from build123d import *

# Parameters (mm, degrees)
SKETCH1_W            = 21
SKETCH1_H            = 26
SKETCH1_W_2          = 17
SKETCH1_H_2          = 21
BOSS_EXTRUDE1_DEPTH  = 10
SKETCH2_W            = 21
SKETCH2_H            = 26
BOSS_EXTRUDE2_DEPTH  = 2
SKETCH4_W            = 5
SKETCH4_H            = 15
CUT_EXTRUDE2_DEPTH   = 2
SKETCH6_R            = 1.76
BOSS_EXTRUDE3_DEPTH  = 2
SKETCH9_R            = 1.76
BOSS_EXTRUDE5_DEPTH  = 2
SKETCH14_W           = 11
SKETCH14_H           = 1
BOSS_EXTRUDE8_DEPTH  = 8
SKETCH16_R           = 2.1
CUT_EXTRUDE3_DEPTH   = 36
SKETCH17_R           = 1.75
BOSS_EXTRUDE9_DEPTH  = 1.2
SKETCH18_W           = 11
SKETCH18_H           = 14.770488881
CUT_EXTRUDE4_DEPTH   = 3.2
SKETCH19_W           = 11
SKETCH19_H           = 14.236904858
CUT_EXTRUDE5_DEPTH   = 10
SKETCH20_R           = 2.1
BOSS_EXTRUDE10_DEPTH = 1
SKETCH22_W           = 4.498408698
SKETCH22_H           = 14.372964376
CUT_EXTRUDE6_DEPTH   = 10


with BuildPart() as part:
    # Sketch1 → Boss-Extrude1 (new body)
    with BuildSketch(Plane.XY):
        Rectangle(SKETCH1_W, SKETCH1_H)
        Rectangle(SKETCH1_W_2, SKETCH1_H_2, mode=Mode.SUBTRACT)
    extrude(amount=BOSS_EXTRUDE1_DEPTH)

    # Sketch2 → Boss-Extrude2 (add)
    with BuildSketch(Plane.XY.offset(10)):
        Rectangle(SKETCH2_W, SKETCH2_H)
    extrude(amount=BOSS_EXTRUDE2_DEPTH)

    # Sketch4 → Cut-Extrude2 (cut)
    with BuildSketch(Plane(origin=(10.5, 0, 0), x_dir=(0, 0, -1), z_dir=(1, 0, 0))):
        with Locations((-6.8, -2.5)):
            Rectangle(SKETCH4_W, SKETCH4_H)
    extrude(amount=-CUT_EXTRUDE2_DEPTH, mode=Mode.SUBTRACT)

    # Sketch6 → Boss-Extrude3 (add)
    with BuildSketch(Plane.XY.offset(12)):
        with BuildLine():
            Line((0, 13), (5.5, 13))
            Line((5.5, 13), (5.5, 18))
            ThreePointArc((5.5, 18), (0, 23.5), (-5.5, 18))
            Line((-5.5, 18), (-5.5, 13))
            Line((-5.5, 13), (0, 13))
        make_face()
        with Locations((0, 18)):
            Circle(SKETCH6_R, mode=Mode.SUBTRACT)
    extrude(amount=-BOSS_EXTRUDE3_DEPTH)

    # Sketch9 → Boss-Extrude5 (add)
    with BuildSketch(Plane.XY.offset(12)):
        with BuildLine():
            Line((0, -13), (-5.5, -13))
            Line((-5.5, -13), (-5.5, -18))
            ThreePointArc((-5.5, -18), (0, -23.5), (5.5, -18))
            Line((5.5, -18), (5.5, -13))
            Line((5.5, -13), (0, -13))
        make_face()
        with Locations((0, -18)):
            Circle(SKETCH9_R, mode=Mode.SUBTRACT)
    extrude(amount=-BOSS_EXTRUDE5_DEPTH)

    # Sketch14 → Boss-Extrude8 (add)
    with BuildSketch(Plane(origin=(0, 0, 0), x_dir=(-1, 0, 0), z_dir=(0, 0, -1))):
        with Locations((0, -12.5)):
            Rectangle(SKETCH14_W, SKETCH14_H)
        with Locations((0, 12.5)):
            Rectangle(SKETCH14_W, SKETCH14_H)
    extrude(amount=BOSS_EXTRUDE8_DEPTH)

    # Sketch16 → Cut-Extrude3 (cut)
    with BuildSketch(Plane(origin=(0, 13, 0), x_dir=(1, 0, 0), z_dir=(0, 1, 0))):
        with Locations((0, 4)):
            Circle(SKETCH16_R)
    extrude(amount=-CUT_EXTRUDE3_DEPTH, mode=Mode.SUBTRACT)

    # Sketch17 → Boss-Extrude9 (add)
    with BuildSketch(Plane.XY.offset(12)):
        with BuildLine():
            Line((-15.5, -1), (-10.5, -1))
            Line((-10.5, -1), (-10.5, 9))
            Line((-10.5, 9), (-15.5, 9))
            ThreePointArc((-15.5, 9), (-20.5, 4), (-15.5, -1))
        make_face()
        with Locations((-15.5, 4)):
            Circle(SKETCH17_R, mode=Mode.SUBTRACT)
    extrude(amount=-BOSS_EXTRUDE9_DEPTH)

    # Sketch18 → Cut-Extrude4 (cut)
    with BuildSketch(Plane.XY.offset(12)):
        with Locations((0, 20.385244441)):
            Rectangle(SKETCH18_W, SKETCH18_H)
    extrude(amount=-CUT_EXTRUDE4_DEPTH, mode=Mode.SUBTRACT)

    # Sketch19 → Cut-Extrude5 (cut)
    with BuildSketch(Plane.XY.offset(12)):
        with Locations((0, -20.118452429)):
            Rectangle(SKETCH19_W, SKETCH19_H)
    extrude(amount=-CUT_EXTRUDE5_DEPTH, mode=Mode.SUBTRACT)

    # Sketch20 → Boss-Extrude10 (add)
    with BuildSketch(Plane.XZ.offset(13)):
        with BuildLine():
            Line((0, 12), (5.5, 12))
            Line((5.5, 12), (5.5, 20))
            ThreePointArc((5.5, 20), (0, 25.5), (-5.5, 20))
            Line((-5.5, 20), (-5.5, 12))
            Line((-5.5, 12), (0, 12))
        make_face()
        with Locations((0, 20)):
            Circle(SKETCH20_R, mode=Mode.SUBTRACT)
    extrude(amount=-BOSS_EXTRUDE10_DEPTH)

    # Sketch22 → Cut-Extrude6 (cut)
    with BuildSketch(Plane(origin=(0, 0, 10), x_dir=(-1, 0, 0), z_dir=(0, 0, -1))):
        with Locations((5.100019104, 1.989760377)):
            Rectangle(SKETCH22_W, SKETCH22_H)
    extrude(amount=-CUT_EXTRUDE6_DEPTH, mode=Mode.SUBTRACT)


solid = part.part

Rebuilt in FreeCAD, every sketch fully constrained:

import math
import FreeCAD as App
import Part
import Sketcher
Q = App.Units.Quantity

doc = App.newDocument("Part")
body = doc.addObject("PartDesign::Body", "Body")

# Sketch on XY plane
sketch1 = body.newObject("Sketcher::SketchObject", "Sketch")
sketch1.AttachmentSupport = (doc.getObject("XY_Plane"), [""])
sketch1.MapMode = "FlatFace"
sketch1.addGeometry(Part.LineSegment(App.Vector(-10.5, 13, 0), App.Vector(-10.5, -13, 0)), False)
sketch1.addGeometry(Part.LineSegment(App.Vector(-10.5, -13, 0), App.Vector(10.5, -13, 0)), False)
sketch1.addGeometry(Part.LineSegment(App.Vector(10.5, -13, 0), App.Vector(10.5, 13, 0)), False)
sketch1.addGeometry(Part.LineSegment(App.Vector(10.5, 13, 0), App.Vector(-10.5, 13, 0)), False)
sketch1.addGeometry(Part.LineSegment(App.Vector(8.5, -10.5, 0), App.Vector(-8.5, -10.5, 0)), False)
sketch1.addGeometry(Part.LineSegment(App.Vector(-8.5, -10.5, 0), App.Vector(-8.5, 10.5, 0)), False)
sketch1.addGeometry(Part.LineSegment(App.Vector(-8.5, 10.5, 0), App.Vector(8.5, 10.5, 0)), False)
sketch1.addGeometry(Part.LineSegment(App.Vector(8.5, 10.5, 0), App.Vector(8.5, -10.5, 0)), False)
sketch1.addConstraint(Sketcher.Constraint("Coincident", 0, 2, 1, 1))
sketch1.addConstraint(Sketcher.Constraint("Coincident", 1, 2, 2, 1))
sketch1.addConstraint(Sketcher.Constraint("Coincident", 2, 2, 3, 1))
sketch1.addConstraint(Sketcher.Constraint("Coincident", 3, 2, 0, 1))
sketch1.addConstraint(Sketcher.Constraint("Coincident", 4, 2, 5, 1))
sketch1.addConstraint(Sketcher.Constraint("Coincident", 5, 2, 6, 1))
sketch1.addConstraint(Sketcher.Constraint("Coincident", 6, 2, 7, 1))
sketch1.addConstraint(Sketcher.Constraint("Coincident", 7, 2, 4, 1))
sketch1.addConstraint(Sketcher.Constraint("Vertical", 0))
sketch1.addConstraint(Sketcher.Constraint("Horizontal", 1))
sketch1.addConstraint(Sketcher.Constraint("Vertical", 2))
sketch1.addConstraint(Sketcher.Constraint("Horizontal", 3))
sketch1.addConstraint(Sketcher.Constraint("Horizontal", 4))
sketch1.addConstraint(Sketcher.Constraint("Vertical", 5))
sketch1.addConstraint(Sketcher.Constraint("Horizontal", 6))
sketch1.addConstraint(Sketcher.Constraint("Vertical", 7))
sketch1.addConstraint(Sketcher.Constraint("Symmetric", 0, 2, 2, 2, -1, 1))
sketch1.addConstraint(Sketcher.Constraint("Symmetric", 4, 2, 6, 2, -1, 1))
sketch1.addConstraint(Sketcher.Constraint("Equal", 3, 5))
sketch1.addConstraint(Sketcher.Constraint("DistanceX", 1, 1, 1, 2, Q("21 mm")))
sketch1.addConstraint(Sketcher.Constraint("DistanceX", 4, 2, 4, 1, Q("17 mm")))
sketch1.addConstraint(Sketcher.Constraint("DistanceY", 0, 2, 0, 1, Q("26 mm")))
pad1 = body.newObject("PartDesign::Pad", "Pad")
pad1.Profile = sketch1
pad1.Length = 10

# Sketch on XY plane
sketch2 = body.newObject("Sketcher::SketchObject", "Sketch001")
sketch2.AttachmentSupport = (doc.getObject("XY_Plane"), [""])
sketch2.MapMode = "FlatFace"
sketch2.AttachmentOffset = App.Placement(App.Vector(0, 0, 10), App.Rotation())
sketch2.addGeometry(Part.LineSegment(App.Vector(-10.5, 13, 0), App.Vector(-10.5, -13, 0)), False)
sketch2.addGeometry(Part.LineSegment(App.Vector(-10.5, -13, 0), App.Vector(10.5, -13, 0)), False)
sketch2.addGeometry(Part.LineSegment(App.Vector(10.5, -13, 0), App.Vector(10.5, 13, 0)), False)
sketch2.addGeometry(Part.LineSegment(App.Vector(10.5, 13, 0), App.Vector(-10.5, 13, 0)), False)
sketch2.addConstraint(Sketcher.Constraint("Coincident", 0, 2, 1, 1))
sketch2.addConstraint(Sketcher.Constraint("Coincident", 1, 2, 2, 1))
sketch2.addConstraint(Sketcher.Constraint("Coincident", 2, 2, 3, 1))
sketch2.addConstraint(Sketcher.Constraint("Coincident", 3, 2, 0, 1))
sketch2.addConstraint(Sketcher.Constraint("Vertical", 0))
sketch2.addConstraint(Sketcher.Constraint("Horizontal", 1))
sketch2.addConstraint(Sketcher.Constraint("Vertical", 2))
sketch2.addConstraint(Sketcher.Constraint("Horizontal", 3))
sketch2.addConstraint(Sketcher.Constraint("Symmetric", 0, 2, 2, 2, -1, 1))
sketch2.addConstraint(Sketcher.Constraint("DistanceX", 1, 1, 1, 2, Q("21 mm")))
sketch2.addConstraint(Sketcher.Constraint("DistanceY", 0, 2, 0, 1, Q("26 mm")))
pad2 = body.newObject("PartDesign::Pad", "Pad001")
pad2.Profile = sketch2
pad2.Length = 2

# Sketch on YZ plane
sketch3 = body.newObject("Sketcher::SketchObject", "Sketch002")
sketch3.AttachmentSupport = (doc.getObject("YZ_Plane"), [""])
sketch3.MapMode = "FlatFace"
sketch3.AttachmentOffset = App.Placement(App.Vector(0, 0, 10.5), App.Rotation())
sketch3.addGeometry(Part.LineSegment(App.Vector(5, 9.3, 0), App.Vector(-10, 9.3, 0)), False)
sketch3.addGeometry(Part.LineSegment(App.Vector(-10, 9.3, 0), App.Vector(-10, 4.3, 0)), False)
sketch3.addGeometry(Part.LineSegment(App.Vector(-10, 4.3, 0), App.Vector(5, 4.3, 0)), False)
sketch3.addGeometry(Part.LineSegment(App.Vector(5, 4.3, 0), App.Vector(5, 9.3, 0)), False)
sketch3.addConstraint(Sketcher.Constraint("Coincident", 0, 2, 1, 1))
sketch3.addConstraint(Sketcher.Constraint("Coincident", 1, 2, 2, 1))
sketch3.addConstraint(Sketcher.Constraint("Coincident", 2, 2, 3, 1))
sketch3.addConstraint(Sketcher.Constraint("Coincident", 3, 2, 0, 1))
sketch3.addConstraint(Sketcher.Constraint("Horizontal", 0))
sketch3.addConstraint(Sketcher.Constraint("Vertical", 1))
sketch3.addConstraint(Sketcher.Constraint("Horizontal", 2))
sketch3.addConstraint(Sketcher.Constraint("Vertical", 3))
sketch3.addConstraint(Sketcher.Constraint("DistanceX", 0, 2, 0, 1, Q("15 mm")))
sketch3.addConstraint(Sketcher.Constraint("DistanceY", 1, 2, 1, 1, Q("5 mm")))
sketch3.addConstraint(Sketcher.Constraint("DistanceX", 0, 2, -1, 1, Q("10 mm")))
sketch3.addConstraint(Sketcher.Constraint("DistanceY", -1, 1, 0, 2, Q("9.3 mm")))
pocket1 = body.newObject("PartDesign::Pocket", "Pocket")
pocket1.Profile = sketch3
pocket1.Length = 2

# Sketch on XY plane
sketch4 = body.newObject("Sketcher::SketchObject", "Sketch003")
sketch4.AttachmentSupport = (doc.getObject("XY_Plane"), [""])
sketch4.MapMode = "FlatFace"
sketch4.AttachmentOffset = App.Placement(App.Vector(0, 0, 12), App.Rotation())
sketch4.addGeometry(Part.LineSegment(App.Vector(5.5, 13, 0), App.Vector(5.5, 18, 0)), False)
sketch4.addGeometry(Part.ArcOfCircle(Part.Circle(App.Vector(0, 18, 0), App.Vector(0, 0, 1), 5.5), math.radians(0), math.radians(180)), False)
sketch4.addGeometry(Part.LineSegment(App.Vector(-5.5, 18, 0), App.Vector(-5.5, 13, 0)), False)
sketch4.addGeometry(Part.LineSegment(App.Vector(-5.5, 13, 0), App.Vector(5.5, 13, 0)), False)
sketch4.addGeometry(Part.Circle(App.Vector(0, 18, 0), App.Vector(0, 0, 1), 1.76), False)
sketch4.addConstraint(Sketcher.Constraint("Tangent", 0, 2, 1, 1))
sketch4.addConstraint(Sketcher.Constraint("Tangent", 1, 2, 2, 1))
sketch4.addConstraint(Sketcher.Constraint("Coincident", 2, 2, 3, 1))
sketch4.addConstraint(Sketcher.Constraint("Coincident", 3, 2, 0, 1))
sketch4.addConstraint(Sketcher.Constraint("Vertical", 0))
sketch4.addConstraint(Sketcher.Constraint("Vertical", 2))
sketch4.addConstraint(Sketcher.Constraint("Horizontal", 3))
sketch4.addConstraint(Sketcher.Constraint("Coincident", 4, 3, 1, 3))
sketch4.addConstraint(Sketcher.Constraint("PointOnObject", 1, 3, -2))
sketch4.addConstraint(Sketcher.Constraint("Radius", 1, Q("5.5 mm")))
sketch4.addConstraint(Sketcher.Constraint("Diameter", 4, Q("3.52 mm")))
sketch4.addConstraint(Sketcher.Constraint("DistanceY", 0, 1, 0, 2, Q("5 mm")))
sketch4.addConstraint(Sketcher.Constraint("DistanceY", -1, 1, 1, 3, Q("18 mm")))
pad3 = body.newObject("PartDesign::Pad", "Pad002")
pad3.Profile = sketch4
pad3.Length = 2
pad3.Reversed = True

# Sketch on XY plane
sketch5 = body.newObject("Sketcher::SketchObject", "Sketch004")
sketch5.AttachmentSupport = (doc.getObject("XY_Plane"), [""])
sketch5.MapMode = "FlatFace"
sketch5.AttachmentOffset = App.Placement(App.Vector(0, 0, 12), App.Rotation())
sketch5.addGeometry(Part.LineSegment(App.Vector(-5.5, -13, 0), App.Vector(-5.5, -18, 0)), False)
sketch5.addGeometry(Part.ArcOfCircle(Part.Circle(App.Vector(0, -18, 0), App.Vector(0, 0, 1), 5.5), math.radians(180), math.radians(360)), False)
sketch5.addGeometry(Part.LineSegment(App.Vector(5.5, -18, 0), App.Vector(5.5, -13, 0)), False)
sketch5.addGeometry(Part.LineSegment(App.Vector(5.5, -13, 0), App.Vector(-5.5, -13, 0)), False)
sketch5.addGeometry(Part.Circle(App.Vector(0, -18, 0), App.Vector(0, 0, 1), 1.76), False)
sketch5.addConstraint(Sketcher.Constraint("Tangent", 0, 2, 1, 1))
sketch5.addConstraint(Sketcher.Constraint("Tangent", 1, 2, 2, 1))
sketch5.addConstraint(Sketcher.Constraint("Coincident", 2, 2, 3, 1))
sketch5.addConstraint(Sketcher.Constraint("Coincident", 3, 2, 0, 1))
sketch5.addConstraint(Sketcher.Constraint("Vertical", 0))
sketch5.addConstraint(Sketcher.Constraint("Vertical", 2))
sketch5.addConstraint(Sketcher.Constraint("Horizontal", 3))
sketch5.addConstraint(Sketcher.Constraint("Coincident", 4, 3, 1, 3))
sketch5.addConstraint(Sketcher.Constraint("PointOnObject", 1, 3, -2))
sketch5.addConstraint(Sketcher.Constraint("Radius", 1, Q("5.5 mm")))
sketch5.addConstraint(Sketcher.Constraint("Diameter", 4, Q("3.52 mm")))
sketch5.addConstraint(Sketcher.Constraint("DistanceY", 0, 2, 0, 1, Q("5 mm")))
sketch5.addConstraint(Sketcher.Constraint("DistanceY", 1, 3, -1, 1, Q("18 mm")))
pad4 = body.newObject("PartDesign::Pad", "Pad003")
pad4.Profile = sketch5
pad4.Length = 2
pad4.Reversed = True

# Sketch on XY plane
sketch6 = body.newObject("Sketcher::SketchObject", "Sketch005")
sketch6.AttachmentSupport = (doc.getObject("XY_Plane"), [""])
sketch6.MapMode = "FlatFace"
sketch6.addGeometry(Part.LineSegment(App.Vector(5.5, -12, 0), App.Vector(5.5, -13, 0)), False)
sketch6.addGeometry(Part.LineSegment(App.Vector(5.5, -13, 0), App.Vector(-5.5, -13, 0)), False)
sketch6.addGeometry(Part.LineSegment(App.Vector(-5.5, -13, 0), App.Vector(-5.5, -12, 0)), False)
sketch6.addGeometry(Part.LineSegment(App.Vector(-5.5, -12, 0), App.Vector(5.5, -12, 0)), False)
sketch6.addGeometry(Part.LineSegment(App.Vector(5.5, 13, 0), App.Vector(5.5, 12, 0)), False)
sketch6.addGeometry(Part.LineSegment(App.Vector(5.5, 12, 0), App.Vector(-5.5, 12, 0)), False)
sketch6.addGeometry(Part.LineSegment(App.Vector(-5.5, 12, 0), App.Vector(-5.5, 13, 0)), False)
sketch6.addGeometry(Part.LineSegment(App.Vector(-5.5, 13, 0), App.Vector(5.5, 13, 0)), False)
sketch6.addConstraint(Sketcher.Constraint("Coincident", 0, 2, 1, 1))
sketch6.addConstraint(Sketcher.Constraint("Coincident", 1, 2, 2, 1))
sketch6.addConstraint(Sketcher.Constraint("Coincident", 2, 2, 3, 1))
sketch6.addConstraint(Sketcher.Constraint("Coincident", 3, 2, 0, 1))
sketch6.addConstraint(Sketcher.Constraint("Coincident", 4, 2, 5, 1))
sketch6.addConstraint(Sketcher.Constraint("Coincident", 5, 2, 6, 1))
sketch6.addConstraint(Sketcher.Constraint("Coincident", 6, 2, 7, 1))
sketch6.addConstraint(Sketcher.Constraint("Coincident", 7, 2, 4, 1))
sketch6.addConstraint(Sketcher.Constraint("Vertical", 0))
sketch6.addConstraint(Sketcher.Constraint("Horizontal", 1))
sketch6.addConstraint(Sketcher.Constraint("Vertical", 2))
sketch6.addConstraint(Sketcher.Constraint("Horizontal", 3))
sketch6.addConstraint(Sketcher.Constraint("Vertical", 4))
sketch6.addConstraint(Sketcher.Constraint("Horizontal", 5))
sketch6.addConstraint(Sketcher.Constraint("Vertical", 6))
sketch6.addConstraint(Sketcher.Constraint("Horizontal", 7))
sketch6.addConstraint(Sketcher.Constraint("Symmetric", 2, 2, 4, 2, -1, 1))
sketch6.addConstraint(Sketcher.Constraint("Symmetric", 0, 2, 6, 2, -1, 1))
sketch6.addConstraint(Sketcher.Constraint("Vertical", 3, 2, 4, 2))
sketch6.addConstraint(Sketcher.Constraint("DistanceX", 1, 2, 1, 1, Q("11 mm")))
sketch6.addConstraint(Sketcher.Constraint("DistanceY", 0, 2, 0, 1, Q("1 mm")))
sketch6.addConstraint(Sketcher.Constraint("DistanceY", 0, 2, -1, 1, Q("13 mm")))
pad5 = body.newObject("PartDesign::Pad", "Pad004")
pad5.Profile = sketch6
pad5.Length = 8
pad5.Reversed = True

# Sketch on XZ plane
sketch7 = body.newObject("Sketcher::SketchObject", "Sketch006")
sketch7.AttachmentSupport = (doc.getObject("XZ_Plane"), [""])
sketch7.MapMode = "FlatFace"
sketch7.AttachmentOffset = App.Placement(App.Vector(0, 0, -13), App.Rotation())
sketch7.addGeometry(Part.Circle(App.Vector(0, -4, 0), App.Vector(0, 0, 1), 2.1), False)
sketch7.addConstraint(Sketcher.Constraint("PointOnObject", 0, 3, -2))
sketch7.addConstraint(Sketcher.Constraint("Diameter", 0, Q("4.2 mm")))
sketch7.addConstraint(Sketcher.Constraint("DistanceY", 0, 3, -1, 1, Q("4 mm")))
pocket2 = body.newObject("PartDesign::Pocket", "Pocket001")
pocket2.Profile = sketch7
pocket2.Length = 36
pocket2.Reversed = True

# Sketch on XY plane
sketch8 = body.newObject("Sketcher::SketchObject", "Sketch007")
sketch8.AttachmentSupport = (doc.getObject("XY_Plane"), [""])
sketch8.MapMode = "FlatFace"
sketch8.AttachmentOffset = App.Placement(App.Vector(0, 0, 12), App.Rotation())
sketch8.addGeometry(Part.LineSegment(App.Vector(-15.5, -1, 0), App.Vector(-10.5, -1, 0)), False)
sketch8.addGeometry(Part.LineSegment(App.Vector(-10.5, -1, 0), App.Vector(-10.5, 9, 0)), False)
sketch8.addGeometry(Part.LineSegment(App.Vector(-10.5, 9, 0), App.Vector(-15.5, 9, 0)), False)
sketch8.addGeometry(Part.ArcOfCircle(Part.Circle(App.Vector(-15.5, 4, 0), App.Vector(0, 0, 1), 5), math.radians(90), math.radians(270)), False)
sketch8.addGeometry(Part.Circle(App.Vector(-15.5, 4, 0), App.Vector(0, 0, 1), 1.75), False)
sketch8.addConstraint(Sketcher.Constraint("Coincident", 0, 2, 1, 1))
sketch8.addConstraint(Sketcher.Constraint("Coincident", 1, 2, 2, 1))
sketch8.addConstraint(Sketcher.Constraint("Tangent", 2, 2, 3, 1))
sketch8.addConstraint(Sketcher.Constraint("Tangent", 3, 2, 0, 1))
sketch8.addConstraint(Sketcher.Constraint("Horizontal", 0))
sketch8.addConstraint(Sketcher.Constraint("Vertical", 1))
sketch8.addConstraint(Sketcher.Constraint("Horizontal", 2))
sketch8.addConstraint(Sketcher.Constraint("Coincident", 4, 3, 3, 3))
sketch8.addConstraint(Sketcher.Constraint("Radius", 3, Q("5 mm")))
sketch8.addConstraint(Sketcher.Constraint("Diameter", 4, Q("3.5 mm")))
sketch8.addConstraint(Sketcher.Constraint("DistanceX", 0, 1, 0, 2, Q("5 mm")))
sketch8.addConstraint(Sketcher.Constraint("DistanceY", -1, 1, 3, 3, Q("4 mm")))
sketch8.addConstraint(Sketcher.Constraint("DistanceX", 3, 3, -1, 1, Q("15.5 mm")))
pad6 = body.newObject("PartDesign::Pad", "Pad005")
pad6.Profile = sketch8
pad6.Length = 1.2
pad6.Reversed = True

# Sketch on XY plane
sketch9 = body.newObject("Sketcher::SketchObject", "Sketch008")
sketch9.AttachmentSupport = (doc.getObject("XY_Plane"), [""])
sketch9.MapMode = "FlatFace"
sketch9.AttachmentOffset = App.Placement(App.Vector(0, 0, 12), App.Rotation())
sketch9.addGeometry(Part.LineSegment(App.Vector(-5.5, 27.770489, 0), App.Vector(-5.5, 13, 0)), False)
sketch9.addGeometry(Part.LineSegment(App.Vector(-5.5, 13, 0), App.Vector(5.5, 13, 0)), False)
sketch9.addGeometry(Part.LineSegment(App.Vector(5.5, 13, 0), App.Vector(5.5, 27.770489, 0)), False)
sketch9.addGeometry(Part.LineSegment(App.Vector(5.5, 27.770489, 0), App.Vector(-5.5, 27.770489, 0)), False)
sketch9.addConstraint(Sketcher.Constraint("Coincident", 0, 2, 1, 1))
sketch9.addConstraint(Sketcher.Constraint("Coincident", 1, 2, 2, 1))
sketch9.addConstraint(Sketcher.Constraint("Coincident", 2, 2, 3, 1))
sketch9.addConstraint(Sketcher.Constraint("Coincident", 3, 2, 0, 1))
sketch9.addConstraint(Sketcher.Constraint("Vertical", 0))
sketch9.addConstraint(Sketcher.Constraint("Horizontal", 1))
sketch9.addConstraint(Sketcher.Constraint("Vertical", 2))
sketch9.addConstraint(Sketcher.Constraint("Horizontal", 3))
sketch9.addConstraint(Sketcher.Constraint("DistanceX", 1, 1, 1, 2, Q("11 mm")))
sketch9.addConstraint(Sketcher.Constraint("DistanceY", -1, 1, 0, 2, Q("13 mm")))
sketch9.addConstraint(Sketcher.Constraint("DistanceX", 0, 2, -1, 1, Q("5.5 mm")))
sketch9.addConstraint(Sketcher.Constraint("DistanceY", 0, 2, 0, 1, Q("14.770489 mm")))
pocket3 = body.newObject("PartDesign::Pocket", "Pocket002")
pocket3.Profile = sketch9
pocket3.Length = 3.2

# Sketch on XY plane
sketch10 = body.newObject("Sketcher::SketchObject", "Sketch009")
sketch10.AttachmentSupport = (doc.getObject("XY_Plane"), [""])
sketch10.MapMode = "FlatFace"
sketch10.AttachmentOffset = App.Placement(App.Vector(0, 0, 12), App.Rotation())
sketch10.addGeometry(Part.LineSegment(App.Vector(-5.5, -13, 0), App.Vector(-5.5, -27.236905, 0)), False)
sketch10.addGeometry(Part.LineSegment(App.Vector(-5.5, -27.236905, 0), App.Vector(5.5, -27.236905, 0)), False)
sketch10.addGeometry(Part.LineSegment(App.Vector(5.5, -27.236905, 0), App.Vector(5.5, -13, 0)), False)
sketch10.addGeometry(Part.LineSegment(App.Vector(5.5, -13, 0), App.Vector(-5.5, -13, 0)), False)
sketch10.addConstraint(Sketcher.Constraint("Coincident", 0, 2, 1, 1))
sketch10.addConstraint(Sketcher.Constraint("Coincident", 1, 2, 2, 1))
sketch10.addConstraint(Sketcher.Constraint("Coincident", 2, 2, 3, 1))
sketch10.addConstraint(Sketcher.Constraint("Coincident", 3, 2, 0, 1))
sketch10.addConstraint(Sketcher.Constraint("Vertical", 0))
sketch10.addConstraint(Sketcher.Constraint("Horizontal", 1))
sketch10.addConstraint(Sketcher.Constraint("Vertical", 2))
sketch10.addConstraint(Sketcher.Constraint("Horizontal", 3))
sketch10.addConstraint(Sketcher.Constraint("DistanceX", 1, 1, 1, 2, Q("11 mm")))
sketch10.addConstraint(Sketcher.Constraint("DistanceY", 2, 2, -1, 1, Q("13 mm")))
sketch10.addConstraint(Sketcher.Constraint("DistanceX", 0, 2, -1, 1, Q("5.5 mm")))
sketch10.addConstraint(Sketcher.Constraint("DistanceY", 0, 2, 0, 1, Q("14.236905 mm")))
pocket4 = body.newObject("PartDesign::Pocket", "Pocket003")
pocket4.Profile = sketch10
pocket4.Length = 10

# Sketch on XZ plane
sketch11 = body.newObject("Sketcher::SketchObject", "Sketch010")
sketch11.AttachmentSupport = (doc.getObject("XZ_Plane"), [""])
sketch11.MapMode = "FlatFace"
sketch11.AttachmentOffset = App.Placement(App.Vector(0, 0, 13), App.Rotation())
sketch11.addGeometry(Part.LineSegment(App.Vector(5.5, 12, 0), App.Vector(5.5, 20, 0)), False)
sketch11.addGeometry(Part.ArcOfCircle(Part.Circle(App.Vector(0, 20, 0), App.Vector(0, 0, 1), 5.5), math.radians(0), math.radians(180)), False)
sketch11.addGeometry(Part.LineSegment(App.Vector(-5.5, 20, 0), App.Vector(-5.5, 12, 0)), False)
sketch11.addGeometry(Part.LineSegment(App.Vector(-5.5, 12, 0), App.Vector(5.5, 12, 0)), False)
sketch11.addGeometry(Part.Circle(App.Vector(0, 20, 0), App.Vector(0, 0, 1), 2.1), False)
sketch11.addConstraint(Sketcher.Constraint("Tangent", 0, 2, 1, 1))
sketch11.addConstraint(Sketcher.Constraint("Tangent", 1, 2, 2, 1))
sketch11.addConstraint(Sketcher.Constraint("Coincident", 2, 2, 3, 1))
sketch11.addConstraint(Sketcher.Constraint("Coincident", 3, 2, 0, 1))
sketch11.addConstraint(Sketcher.Constraint("Vertical", 0))
sketch11.addConstraint(Sketcher.Constraint("Vertical", 2))
sketch11.addConstraint(Sketcher.Constraint("Horizontal", 3))
sketch11.addConstraint(Sketcher.Constraint("Coincident", 4, 3, 1, 3))
sketch11.addConstraint(Sketcher.Constraint("PointOnObject", 1, 3, -2))
sketch11.addConstraint(Sketcher.Constraint("Diameter", 4, Q("4.2 mm")))
sketch11.addConstraint(Sketcher.Constraint("Radius", 1, Q("5.5 mm")))
sketch11.addConstraint(Sketcher.Constraint("DistanceY", 0, 1, 0, 2, Q("8 mm")))
sketch11.addConstraint(Sketcher.Constraint("DistanceY", -1, 1, 1, 3, Q("20 mm")))
pad7 = body.newObject("PartDesign::Pad", "Pad006")
pad7.Profile = sketch11
pad7.Length = 1
pad7.Reversed = True

# Sketch on XY plane
sketch12 = body.newObject("Sketcher::SketchObject", "Sketch011")
sketch12.AttachmentSupport = (doc.getObject("XY_Plane"), [""])
sketch12.MapMode = "FlatFace"
sketch12.AttachmentOffset = App.Placement(App.Vector(0, 0, 10), App.Rotation())
sketch12.addGeometry(Part.LineSegment(App.Vector(-2.850815, 9.176243, 0), App.Vector(-2.850815, -5.196722, 0)), False)
sketch12.addGeometry(Part.LineSegment(App.Vector(-2.850815, -5.196722, 0), App.Vector(-7.349223, -5.196722, 0)), False)
sketch12.addGeometry(Part.LineSegment(App.Vector(-7.349223, -5.196722, 0), App.Vector(-7.349223, 9.176243, 0)), False)
sketch12.addGeometry(Part.LineSegment(App.Vector(-7.349223, 9.176243, 0), App.Vector(-2.850815, 9.176243, 0)), False)
sketch12.addConstraint(Sketcher.Constraint("Coincident", 0, 2, 1, 1))
sketch12.addConstraint(Sketcher.Constraint("Coincident", 1, 2, 2, 1))
sketch12.addConstraint(Sketcher.Constraint("Coincident", 2, 2, 3, 1))
sketch12.addConstraint(Sketcher.Constraint("Coincident", 3, 2, 0, 1))
sketch12.addConstraint(Sketcher.Constraint("Vertical", 0))
sketch12.addConstraint(Sketcher.Constraint("Horizontal", 1))
sketch12.addConstraint(Sketcher.Constraint("Vertical", 2))
sketch12.addConstraint(Sketcher.Constraint("Horizontal", 3))
sketch12.addConstraint(Sketcher.Constraint("DistanceX", 1, 2, 1, 1, Q("4.498409 mm")))
sketch12.addConstraint(Sketcher.Constraint("DistanceY", 0, 2, 0, 1, Q("14.372964 mm")))
sketch12.addConstraint(Sketcher.Constraint("DistanceY", 0, 2, -1, 1, Q("5.196722 mm")))
sketch12.addConstraint(Sketcher.Constraint("DistanceX", 0, 2, -1, 1, Q("2.850815 mm")))
pocket5 = body.newObject("PartDesign::Pocket", "Pocket004")
pocket5.Profile = sketch12
pocket5.Length = 10
pocket5.Reversed = True

doc.recompute()
